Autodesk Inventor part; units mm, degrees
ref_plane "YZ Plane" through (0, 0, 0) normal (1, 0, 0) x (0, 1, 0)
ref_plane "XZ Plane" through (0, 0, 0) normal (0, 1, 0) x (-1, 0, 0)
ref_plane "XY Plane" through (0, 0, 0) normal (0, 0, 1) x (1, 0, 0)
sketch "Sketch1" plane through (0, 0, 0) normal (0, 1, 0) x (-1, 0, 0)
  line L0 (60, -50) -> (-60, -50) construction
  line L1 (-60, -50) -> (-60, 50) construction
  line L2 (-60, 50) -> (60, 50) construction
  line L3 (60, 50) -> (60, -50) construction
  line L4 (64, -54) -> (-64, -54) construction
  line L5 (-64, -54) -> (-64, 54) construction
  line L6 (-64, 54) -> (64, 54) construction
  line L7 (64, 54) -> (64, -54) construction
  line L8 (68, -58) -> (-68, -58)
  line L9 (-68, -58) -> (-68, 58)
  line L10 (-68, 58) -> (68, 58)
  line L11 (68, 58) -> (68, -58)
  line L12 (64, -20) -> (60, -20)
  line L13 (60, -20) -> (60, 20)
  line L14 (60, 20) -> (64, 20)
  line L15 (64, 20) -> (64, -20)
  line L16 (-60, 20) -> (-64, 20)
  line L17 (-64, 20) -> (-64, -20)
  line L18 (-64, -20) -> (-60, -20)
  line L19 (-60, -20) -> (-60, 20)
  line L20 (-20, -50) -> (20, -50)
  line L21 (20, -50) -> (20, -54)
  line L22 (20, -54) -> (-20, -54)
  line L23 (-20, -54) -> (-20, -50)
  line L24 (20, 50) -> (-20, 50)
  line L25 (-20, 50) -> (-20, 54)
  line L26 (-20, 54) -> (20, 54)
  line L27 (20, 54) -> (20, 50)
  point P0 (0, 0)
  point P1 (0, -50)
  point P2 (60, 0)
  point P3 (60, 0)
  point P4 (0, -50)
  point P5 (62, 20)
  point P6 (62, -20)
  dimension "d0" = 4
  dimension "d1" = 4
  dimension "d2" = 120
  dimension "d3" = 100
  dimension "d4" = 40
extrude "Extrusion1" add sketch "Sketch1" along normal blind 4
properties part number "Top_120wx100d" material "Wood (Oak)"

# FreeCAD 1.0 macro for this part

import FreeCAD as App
import Part
import Sketcher
Q = App.Units.Quantity


def add_polygon(sketch, points):
    """Adds a closed chain of lines whose ends are joined by coincident constraints."""
    first, n = sketch.GeometryCount, len(points)
    for a, b in zip(points, points[1:] + points[:1]):
        sketch.addGeometry(Part.LineSegment(App.Vector(*a, 0), App.Vector(*b, 0)), False)
    for i in range(n):
        sketch.addConstraint(Sketcher.Constraint("Coincident", first + i, 2, first + (i + 1) % n, 1))

doc = App.newDocument("Part")
body = doc.addObject("PartDesign::Body", "Body")

# Sketch on XZ plane
sketch1 = body.newObject("Sketcher::SketchObject", "Sketch")
sketch1.AttachmentSupport = (doc.getObject("XZ_Plane"), [""])
sketch1.MapMode = "FlatFace"
add_polygon(sketch1, [(68, -58), (-68, -58), (-68, 58), (68, 58)])  # lines 0-3
add_polygon(sketch1, [(20, -54), (20, -50), (-20, -50), (-20, -54)])  # lines 4-7
add_polygon(sketch1, [(64, 20), (60, 20), (60, -20), (64, -20)])  # lines 8-11
add_polygon(sketch1, [(-64, 20), (-64, -20), (-60, -20), (-60, 20)])  # lines 12-15
add_polygon(sketch1, [(-20, 54), (-20, 50), (20, 50), (20, 54)])  # lines 16-19
sketch1.addConstraint([
    Sketcher.Constraint("Horizontal", 0),
    Sketcher.Constraint("Vertical", 1),
    Sketcher.Constraint("Horizontal", 2),
    Sketcher.Constraint("Vertical", 3),
    Sketcher.Constraint("Vertical", 4),
    Sketcher.Constraint("Horizontal", 5),
    Sketcher.Constraint("Vertical", 6),
    Sketcher.Constraint("Horizontal", 7),
    Sketcher.Constraint("Horizontal", 8),
    Sketcher.Constraint("Vertical", 9),
    Sketcher.Constraint("Horizontal", 10),
    Sketcher.Constraint("Vertical", 11),
    Sketcher.Constraint("Vertical", 12),
    Sketcher.Constraint("Horizontal", 13),
    Sketcher.Constraint("Vertical", 14),
    Sketcher.Constraint("Horizontal", 15),
    Sketcher.Constraint("Vertical", 16),
    Sketcher.Constraint("Horizontal", 17),
    Sketcher.Constraint("Vertical", 18),
    Sketcher.Constraint("Horizontal", 19),
    Sketcher.Constraint("Symmetric", 0, 2, 2, 2, -1, 1),
    Sketcher.Constraint("Symmetric", 11, 2, 12, 2, -1, 1),
    Sketcher.Constraint("Symmetric", 9, 2, 14, 2, -1, 1),
    Sketcher.Constraint("Symmetric", 4, 2, 16, 2, -1, 1),
    Sketcher.Constraint("Symmetric", 6, 2, 18, 2, -1, 1),
    Sketcher.Constraint("Horizontal", 10, 2, 12, 2),
    Sketcher.Constraint("Vertical", 6, 2, 16, 2),
    Sketcher.Constraint("Equal", 15, 4),
    Sketcher.Constraint("Equal", 19, 9),
    Sketcher.Constraint("DistanceX", 5, 2, 5, 1, Q("40 mm")),
    Sketcher.Constraint("DistanceX", 8, 2, 8, 1, Q("4 mm")),
    Sketcher.Constraint("DistanceY", 0, 2, 6, 2, Q("4 mm")),
    Sketcher.Constraint("DistanceX", 4, 2, 8, 2, Q("40 mm")),
    Sketcher.Constraint("DistanceX", 10, 2, 3, 2, Q("4 mm")),
    Sketcher.Constraint("DistanceY", 1, 1, 1, 2, Q("116 mm")),
])
pad1 = body.newObject("PartDesign::Pad", "Pad")
pad1.Profile = sketch1
pad1.Length = 4
pad1.Reversed = True

doc.recompute()
